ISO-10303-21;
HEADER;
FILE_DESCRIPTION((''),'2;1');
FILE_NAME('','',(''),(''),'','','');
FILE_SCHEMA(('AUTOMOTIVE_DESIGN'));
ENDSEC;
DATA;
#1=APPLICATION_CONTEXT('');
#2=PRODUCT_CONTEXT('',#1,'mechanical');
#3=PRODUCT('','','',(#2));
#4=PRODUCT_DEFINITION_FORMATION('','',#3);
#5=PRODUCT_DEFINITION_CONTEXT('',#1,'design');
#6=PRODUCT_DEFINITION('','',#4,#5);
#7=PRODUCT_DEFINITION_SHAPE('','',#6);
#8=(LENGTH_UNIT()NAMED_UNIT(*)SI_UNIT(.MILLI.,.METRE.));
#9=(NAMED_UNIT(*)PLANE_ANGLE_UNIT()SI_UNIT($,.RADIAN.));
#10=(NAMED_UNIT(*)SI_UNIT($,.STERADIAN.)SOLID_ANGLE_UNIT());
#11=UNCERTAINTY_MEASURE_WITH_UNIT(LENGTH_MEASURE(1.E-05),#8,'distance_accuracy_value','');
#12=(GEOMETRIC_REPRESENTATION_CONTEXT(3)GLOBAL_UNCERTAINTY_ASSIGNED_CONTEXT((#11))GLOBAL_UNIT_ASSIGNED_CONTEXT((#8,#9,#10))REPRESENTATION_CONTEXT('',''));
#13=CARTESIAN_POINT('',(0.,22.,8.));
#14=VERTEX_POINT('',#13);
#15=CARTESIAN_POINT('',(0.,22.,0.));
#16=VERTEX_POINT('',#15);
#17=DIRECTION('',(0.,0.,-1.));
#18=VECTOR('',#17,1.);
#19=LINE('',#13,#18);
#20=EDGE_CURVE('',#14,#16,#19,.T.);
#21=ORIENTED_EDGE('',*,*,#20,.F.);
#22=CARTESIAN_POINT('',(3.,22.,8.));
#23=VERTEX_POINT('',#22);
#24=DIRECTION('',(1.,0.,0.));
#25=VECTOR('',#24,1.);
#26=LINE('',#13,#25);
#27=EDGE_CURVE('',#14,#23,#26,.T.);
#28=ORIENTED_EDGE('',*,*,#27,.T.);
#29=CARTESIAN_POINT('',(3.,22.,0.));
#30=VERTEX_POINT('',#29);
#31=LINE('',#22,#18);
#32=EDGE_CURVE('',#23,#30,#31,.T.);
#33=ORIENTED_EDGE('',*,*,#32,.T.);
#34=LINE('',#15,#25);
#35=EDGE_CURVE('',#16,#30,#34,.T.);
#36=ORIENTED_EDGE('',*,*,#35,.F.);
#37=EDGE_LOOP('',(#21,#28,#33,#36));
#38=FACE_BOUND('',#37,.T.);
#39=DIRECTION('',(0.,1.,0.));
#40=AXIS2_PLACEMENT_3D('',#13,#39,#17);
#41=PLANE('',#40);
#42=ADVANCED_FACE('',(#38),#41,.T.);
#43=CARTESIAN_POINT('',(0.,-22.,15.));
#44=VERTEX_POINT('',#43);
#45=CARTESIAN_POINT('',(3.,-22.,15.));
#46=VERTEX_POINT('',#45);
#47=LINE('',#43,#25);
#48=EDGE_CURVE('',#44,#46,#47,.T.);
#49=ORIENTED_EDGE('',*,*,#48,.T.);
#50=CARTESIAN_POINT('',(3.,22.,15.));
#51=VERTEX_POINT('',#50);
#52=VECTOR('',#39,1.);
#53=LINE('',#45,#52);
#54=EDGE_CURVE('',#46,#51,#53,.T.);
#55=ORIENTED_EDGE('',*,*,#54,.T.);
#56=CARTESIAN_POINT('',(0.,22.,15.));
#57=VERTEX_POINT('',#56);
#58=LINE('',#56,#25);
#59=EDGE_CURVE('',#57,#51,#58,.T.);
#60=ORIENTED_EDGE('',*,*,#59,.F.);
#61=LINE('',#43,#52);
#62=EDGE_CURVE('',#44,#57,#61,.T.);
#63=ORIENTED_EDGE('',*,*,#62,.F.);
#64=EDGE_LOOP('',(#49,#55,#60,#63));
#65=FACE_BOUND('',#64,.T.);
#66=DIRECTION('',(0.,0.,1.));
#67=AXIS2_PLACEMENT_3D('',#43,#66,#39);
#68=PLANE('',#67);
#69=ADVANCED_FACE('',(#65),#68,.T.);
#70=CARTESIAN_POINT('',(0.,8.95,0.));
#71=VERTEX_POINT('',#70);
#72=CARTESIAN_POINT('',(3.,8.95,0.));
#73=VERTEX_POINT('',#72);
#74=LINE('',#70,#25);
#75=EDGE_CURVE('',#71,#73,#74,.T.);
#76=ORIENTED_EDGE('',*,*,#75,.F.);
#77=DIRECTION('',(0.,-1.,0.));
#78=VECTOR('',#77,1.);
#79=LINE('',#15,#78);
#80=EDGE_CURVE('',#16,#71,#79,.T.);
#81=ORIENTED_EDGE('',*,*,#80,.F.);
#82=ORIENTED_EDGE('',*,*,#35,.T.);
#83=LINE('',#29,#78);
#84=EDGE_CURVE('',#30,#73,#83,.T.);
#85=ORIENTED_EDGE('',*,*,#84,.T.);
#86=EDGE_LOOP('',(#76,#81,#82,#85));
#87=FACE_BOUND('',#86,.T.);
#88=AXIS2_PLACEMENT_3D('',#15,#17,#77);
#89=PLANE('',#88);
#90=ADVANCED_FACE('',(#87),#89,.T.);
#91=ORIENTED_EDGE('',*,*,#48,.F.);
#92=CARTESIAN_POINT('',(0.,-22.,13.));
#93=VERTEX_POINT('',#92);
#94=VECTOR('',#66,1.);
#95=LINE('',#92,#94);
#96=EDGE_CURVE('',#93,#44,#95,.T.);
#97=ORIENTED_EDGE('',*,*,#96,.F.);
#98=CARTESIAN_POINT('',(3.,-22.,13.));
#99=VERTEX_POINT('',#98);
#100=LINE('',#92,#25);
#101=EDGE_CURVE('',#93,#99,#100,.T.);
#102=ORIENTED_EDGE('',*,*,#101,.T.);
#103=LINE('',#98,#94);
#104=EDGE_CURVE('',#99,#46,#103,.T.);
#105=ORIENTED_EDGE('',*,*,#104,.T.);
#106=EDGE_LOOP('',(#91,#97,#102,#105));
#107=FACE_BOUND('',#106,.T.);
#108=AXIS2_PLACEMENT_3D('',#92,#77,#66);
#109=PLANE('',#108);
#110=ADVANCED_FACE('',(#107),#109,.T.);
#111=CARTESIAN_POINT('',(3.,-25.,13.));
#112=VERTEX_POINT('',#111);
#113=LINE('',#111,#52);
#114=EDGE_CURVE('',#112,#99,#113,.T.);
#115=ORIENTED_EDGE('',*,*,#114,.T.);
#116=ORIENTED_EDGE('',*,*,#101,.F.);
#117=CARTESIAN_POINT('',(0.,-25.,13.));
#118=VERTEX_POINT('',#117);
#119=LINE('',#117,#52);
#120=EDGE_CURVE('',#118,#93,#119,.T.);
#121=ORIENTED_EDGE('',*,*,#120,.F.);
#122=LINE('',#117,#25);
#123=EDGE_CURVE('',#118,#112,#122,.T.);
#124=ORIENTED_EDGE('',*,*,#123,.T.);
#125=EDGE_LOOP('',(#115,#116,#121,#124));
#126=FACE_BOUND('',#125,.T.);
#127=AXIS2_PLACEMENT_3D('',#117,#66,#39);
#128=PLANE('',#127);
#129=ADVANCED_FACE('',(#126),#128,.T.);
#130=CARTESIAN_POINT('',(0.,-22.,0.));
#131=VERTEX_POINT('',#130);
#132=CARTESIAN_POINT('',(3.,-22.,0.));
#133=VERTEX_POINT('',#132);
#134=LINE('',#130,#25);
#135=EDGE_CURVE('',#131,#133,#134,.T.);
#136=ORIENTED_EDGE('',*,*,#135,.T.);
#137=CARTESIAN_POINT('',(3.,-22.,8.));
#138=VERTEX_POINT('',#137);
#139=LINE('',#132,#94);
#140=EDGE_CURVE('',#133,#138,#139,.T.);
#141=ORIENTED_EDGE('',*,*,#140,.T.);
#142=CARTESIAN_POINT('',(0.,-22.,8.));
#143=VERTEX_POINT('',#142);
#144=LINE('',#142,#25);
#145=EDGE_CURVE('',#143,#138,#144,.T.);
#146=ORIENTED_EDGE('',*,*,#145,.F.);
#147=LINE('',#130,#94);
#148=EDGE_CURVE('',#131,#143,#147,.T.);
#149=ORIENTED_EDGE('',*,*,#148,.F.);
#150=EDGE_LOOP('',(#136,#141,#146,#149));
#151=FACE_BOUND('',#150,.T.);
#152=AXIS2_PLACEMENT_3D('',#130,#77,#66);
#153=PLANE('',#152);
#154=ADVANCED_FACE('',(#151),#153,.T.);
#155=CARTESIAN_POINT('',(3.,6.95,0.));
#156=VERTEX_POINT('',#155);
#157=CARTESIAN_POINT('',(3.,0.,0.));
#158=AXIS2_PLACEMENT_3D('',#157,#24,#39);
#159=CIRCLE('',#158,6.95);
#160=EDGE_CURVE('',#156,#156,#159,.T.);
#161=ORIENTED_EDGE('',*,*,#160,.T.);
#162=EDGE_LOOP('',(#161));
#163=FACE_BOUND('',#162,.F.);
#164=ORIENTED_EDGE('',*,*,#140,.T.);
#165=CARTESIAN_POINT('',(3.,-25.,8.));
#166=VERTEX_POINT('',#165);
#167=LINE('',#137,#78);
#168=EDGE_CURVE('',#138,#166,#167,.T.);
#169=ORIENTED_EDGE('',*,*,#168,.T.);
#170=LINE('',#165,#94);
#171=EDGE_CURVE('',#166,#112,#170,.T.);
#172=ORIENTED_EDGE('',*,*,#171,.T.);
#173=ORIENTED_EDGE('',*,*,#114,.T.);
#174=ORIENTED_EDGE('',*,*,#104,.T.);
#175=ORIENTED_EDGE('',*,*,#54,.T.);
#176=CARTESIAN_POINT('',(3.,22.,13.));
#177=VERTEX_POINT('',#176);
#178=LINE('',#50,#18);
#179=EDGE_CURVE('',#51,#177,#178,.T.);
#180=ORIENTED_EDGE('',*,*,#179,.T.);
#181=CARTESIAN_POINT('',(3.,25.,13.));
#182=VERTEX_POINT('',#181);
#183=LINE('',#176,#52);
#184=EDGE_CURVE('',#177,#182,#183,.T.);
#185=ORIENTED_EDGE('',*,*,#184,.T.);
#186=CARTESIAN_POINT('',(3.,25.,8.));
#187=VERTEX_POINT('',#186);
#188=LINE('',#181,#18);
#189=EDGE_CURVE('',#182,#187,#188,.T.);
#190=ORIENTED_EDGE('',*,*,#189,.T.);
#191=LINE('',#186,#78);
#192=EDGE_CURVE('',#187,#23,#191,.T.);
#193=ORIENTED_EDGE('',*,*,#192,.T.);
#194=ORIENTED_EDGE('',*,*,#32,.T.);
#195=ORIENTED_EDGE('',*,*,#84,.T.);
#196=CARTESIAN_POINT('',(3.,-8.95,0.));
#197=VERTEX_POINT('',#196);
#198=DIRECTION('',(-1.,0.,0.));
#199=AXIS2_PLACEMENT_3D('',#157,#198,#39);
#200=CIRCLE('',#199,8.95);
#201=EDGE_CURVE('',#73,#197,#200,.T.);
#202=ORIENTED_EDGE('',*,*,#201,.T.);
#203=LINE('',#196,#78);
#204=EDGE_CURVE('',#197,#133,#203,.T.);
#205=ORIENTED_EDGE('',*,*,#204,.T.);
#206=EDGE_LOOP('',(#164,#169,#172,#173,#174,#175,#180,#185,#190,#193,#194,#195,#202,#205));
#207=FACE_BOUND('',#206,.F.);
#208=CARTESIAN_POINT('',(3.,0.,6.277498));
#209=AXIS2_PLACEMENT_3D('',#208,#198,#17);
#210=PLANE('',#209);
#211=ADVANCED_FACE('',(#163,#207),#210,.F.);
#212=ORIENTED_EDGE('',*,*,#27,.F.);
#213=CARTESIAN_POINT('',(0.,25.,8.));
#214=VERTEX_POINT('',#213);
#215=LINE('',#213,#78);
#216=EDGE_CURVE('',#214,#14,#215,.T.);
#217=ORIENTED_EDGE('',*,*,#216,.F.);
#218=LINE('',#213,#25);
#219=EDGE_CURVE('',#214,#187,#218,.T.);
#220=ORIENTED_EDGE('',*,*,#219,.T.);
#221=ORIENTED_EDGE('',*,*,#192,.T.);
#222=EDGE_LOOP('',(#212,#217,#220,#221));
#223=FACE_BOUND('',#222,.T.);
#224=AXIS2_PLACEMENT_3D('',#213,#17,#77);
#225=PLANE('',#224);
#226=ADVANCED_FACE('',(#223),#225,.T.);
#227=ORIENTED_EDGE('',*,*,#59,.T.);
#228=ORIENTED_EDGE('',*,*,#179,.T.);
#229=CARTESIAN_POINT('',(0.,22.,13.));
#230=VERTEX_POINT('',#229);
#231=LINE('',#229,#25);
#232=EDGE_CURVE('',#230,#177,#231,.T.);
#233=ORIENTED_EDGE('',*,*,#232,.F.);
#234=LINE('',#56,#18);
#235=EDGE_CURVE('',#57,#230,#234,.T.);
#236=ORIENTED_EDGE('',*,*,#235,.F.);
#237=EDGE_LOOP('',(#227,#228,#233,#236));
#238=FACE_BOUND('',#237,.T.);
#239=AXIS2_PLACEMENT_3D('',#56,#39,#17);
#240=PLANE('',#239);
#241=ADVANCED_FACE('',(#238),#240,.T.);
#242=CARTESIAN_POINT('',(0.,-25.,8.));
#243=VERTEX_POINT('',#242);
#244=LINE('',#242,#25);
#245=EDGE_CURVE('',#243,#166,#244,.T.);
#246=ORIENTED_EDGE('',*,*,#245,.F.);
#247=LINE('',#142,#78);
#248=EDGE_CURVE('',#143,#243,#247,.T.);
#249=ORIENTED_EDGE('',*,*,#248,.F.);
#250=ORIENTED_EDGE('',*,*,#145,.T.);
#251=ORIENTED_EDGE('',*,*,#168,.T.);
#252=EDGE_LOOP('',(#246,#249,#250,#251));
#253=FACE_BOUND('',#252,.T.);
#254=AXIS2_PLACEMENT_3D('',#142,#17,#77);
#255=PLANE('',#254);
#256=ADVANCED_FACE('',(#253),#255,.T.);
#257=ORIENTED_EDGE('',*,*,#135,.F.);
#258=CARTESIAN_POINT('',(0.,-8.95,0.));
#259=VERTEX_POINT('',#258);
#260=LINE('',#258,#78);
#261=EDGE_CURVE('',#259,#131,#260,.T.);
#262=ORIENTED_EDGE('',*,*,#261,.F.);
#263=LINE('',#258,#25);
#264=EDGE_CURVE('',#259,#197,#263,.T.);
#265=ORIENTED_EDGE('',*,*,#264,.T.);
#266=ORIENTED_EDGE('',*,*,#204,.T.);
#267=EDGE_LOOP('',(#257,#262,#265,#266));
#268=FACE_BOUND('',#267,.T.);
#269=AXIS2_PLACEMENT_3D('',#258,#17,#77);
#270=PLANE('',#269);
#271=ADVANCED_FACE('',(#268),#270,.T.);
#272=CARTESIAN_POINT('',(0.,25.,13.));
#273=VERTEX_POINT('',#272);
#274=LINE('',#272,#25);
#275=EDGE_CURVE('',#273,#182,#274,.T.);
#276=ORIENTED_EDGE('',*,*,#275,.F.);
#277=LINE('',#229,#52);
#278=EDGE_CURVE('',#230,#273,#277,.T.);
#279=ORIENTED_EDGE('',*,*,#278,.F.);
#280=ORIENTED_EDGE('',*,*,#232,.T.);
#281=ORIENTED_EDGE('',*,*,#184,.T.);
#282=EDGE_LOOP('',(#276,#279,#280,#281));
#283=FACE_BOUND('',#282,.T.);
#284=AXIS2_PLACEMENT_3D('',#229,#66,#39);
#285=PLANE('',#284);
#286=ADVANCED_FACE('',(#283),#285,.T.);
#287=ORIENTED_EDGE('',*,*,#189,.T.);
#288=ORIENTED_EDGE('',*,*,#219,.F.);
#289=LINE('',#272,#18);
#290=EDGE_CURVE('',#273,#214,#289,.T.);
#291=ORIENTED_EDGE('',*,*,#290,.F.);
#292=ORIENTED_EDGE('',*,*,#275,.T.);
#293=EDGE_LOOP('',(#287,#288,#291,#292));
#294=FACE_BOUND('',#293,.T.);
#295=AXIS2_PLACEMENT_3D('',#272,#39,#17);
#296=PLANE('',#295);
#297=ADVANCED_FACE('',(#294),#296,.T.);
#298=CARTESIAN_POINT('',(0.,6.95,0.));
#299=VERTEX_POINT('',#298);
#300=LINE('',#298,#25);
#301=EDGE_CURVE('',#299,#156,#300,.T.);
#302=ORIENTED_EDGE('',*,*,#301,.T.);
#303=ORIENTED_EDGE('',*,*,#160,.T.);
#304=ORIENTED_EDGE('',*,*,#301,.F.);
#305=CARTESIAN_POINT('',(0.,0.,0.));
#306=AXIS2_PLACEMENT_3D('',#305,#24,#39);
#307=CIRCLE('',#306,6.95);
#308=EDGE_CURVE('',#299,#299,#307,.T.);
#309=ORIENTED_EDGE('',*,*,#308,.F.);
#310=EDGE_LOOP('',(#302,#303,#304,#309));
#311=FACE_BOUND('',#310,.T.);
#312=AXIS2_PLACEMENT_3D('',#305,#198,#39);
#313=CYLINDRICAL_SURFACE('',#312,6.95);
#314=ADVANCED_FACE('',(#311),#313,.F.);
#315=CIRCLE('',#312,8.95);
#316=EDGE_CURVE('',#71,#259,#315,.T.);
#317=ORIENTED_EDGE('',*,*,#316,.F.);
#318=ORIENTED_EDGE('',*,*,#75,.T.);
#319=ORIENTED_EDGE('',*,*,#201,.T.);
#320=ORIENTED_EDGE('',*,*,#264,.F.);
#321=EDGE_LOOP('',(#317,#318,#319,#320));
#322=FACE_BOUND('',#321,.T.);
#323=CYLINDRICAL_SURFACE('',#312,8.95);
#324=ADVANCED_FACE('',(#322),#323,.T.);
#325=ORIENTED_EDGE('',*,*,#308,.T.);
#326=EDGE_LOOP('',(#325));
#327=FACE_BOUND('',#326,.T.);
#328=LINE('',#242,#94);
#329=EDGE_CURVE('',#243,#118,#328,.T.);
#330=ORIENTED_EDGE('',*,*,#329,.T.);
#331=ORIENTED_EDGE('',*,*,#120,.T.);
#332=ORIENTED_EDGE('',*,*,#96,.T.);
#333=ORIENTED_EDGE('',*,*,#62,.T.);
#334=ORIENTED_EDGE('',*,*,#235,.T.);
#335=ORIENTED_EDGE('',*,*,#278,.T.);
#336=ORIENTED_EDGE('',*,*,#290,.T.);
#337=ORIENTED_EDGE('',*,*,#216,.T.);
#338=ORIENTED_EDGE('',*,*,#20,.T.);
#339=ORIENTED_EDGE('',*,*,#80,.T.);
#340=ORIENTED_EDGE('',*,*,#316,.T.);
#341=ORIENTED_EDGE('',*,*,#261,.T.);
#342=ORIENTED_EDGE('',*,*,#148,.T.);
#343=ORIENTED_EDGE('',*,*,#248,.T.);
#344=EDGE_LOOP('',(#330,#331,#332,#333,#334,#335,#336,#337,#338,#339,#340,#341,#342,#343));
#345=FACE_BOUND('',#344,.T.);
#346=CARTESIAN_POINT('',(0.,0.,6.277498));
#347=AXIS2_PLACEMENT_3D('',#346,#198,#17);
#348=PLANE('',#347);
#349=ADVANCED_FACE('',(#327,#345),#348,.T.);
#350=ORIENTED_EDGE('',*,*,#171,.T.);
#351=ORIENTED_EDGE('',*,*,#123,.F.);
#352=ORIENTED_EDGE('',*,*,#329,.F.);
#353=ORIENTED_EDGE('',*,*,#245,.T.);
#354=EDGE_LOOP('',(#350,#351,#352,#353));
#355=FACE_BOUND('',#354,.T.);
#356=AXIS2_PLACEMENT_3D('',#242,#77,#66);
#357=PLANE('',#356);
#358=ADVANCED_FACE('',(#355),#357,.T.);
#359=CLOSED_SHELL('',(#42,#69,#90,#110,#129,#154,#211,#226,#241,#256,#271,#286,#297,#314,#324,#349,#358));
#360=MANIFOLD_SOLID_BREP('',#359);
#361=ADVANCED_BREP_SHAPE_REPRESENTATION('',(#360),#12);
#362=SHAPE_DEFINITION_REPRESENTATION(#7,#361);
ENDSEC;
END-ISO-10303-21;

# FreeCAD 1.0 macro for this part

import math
import FreeCAD as App
import Part
import Sketcher

V = App.Vector

doc = App.newDocument("Part")
params = doc.addObject("Spreadsheet::Sheet", "Params")
for row, (alias, value) in enumerate([
    ("sketch1_diameter", "13.9 mm"),
    ("sketch1_height", "2 mm"),
    ("sketch1_height2", "5 mm"),
    ("sketch1_height3", "8 mm"),
    ("sketch1_radius", "8.95 mm"),
    ("pad1_length", "3 mm"),
], start=1):
    params.set(f"A{row}", alias)
    params.set(f"B{row}", "=" + value)
    params.setAlias(f"B{row}", alias)

body = doc.addObject("PartDesign::Body", "Body")

# Sketch on YZ plane
sketch1 = doc.addObject("Sketcher::SketchObject", "Sketch")
body.addObject(sketch1)
sketch1.AttachmentSupport = (doc.YZ_Plane, [""])
sketch1.MapMode = "FlatFace"
sketch1.addGeometry([
    Part.LineSegment(V(22, 13, 0), V(22, 15, 0)),  # 0
    Part.LineSegment(V(22, 15, 0), V(-22, 15, 0)),  # 1
    Part.LineSegment(V(-22, 15, 0), V(-22, 13, 0)),  # 2
    Part.LineSegment(V(-22, 13, 0), V(-25, 13, 0)),  # 3
    Part.LineSegment(V(-25, 13, 0), V(-25, 8, 0)),  # 4
    Part.LineSegment(V(-25, 8, 0), V(-22, 8, 0)),  # 5
    Part.LineSegment(V(-22, 8, 0), V(-22, 0, 0)),  # 6
    Part.LineSegment(V(-22, 0, 0), V(-8.9, 0, 0)),  # 7
    Part.ArcOfCircle(Part.Circle(V(0, 0, 0), V(0, 0, 1), 8.9), math.radians(180), math.radians(360)),  # 8
    Part.LineSegment(V(8.9, 0, 0), V(22, 0, 0)),  # 9
    Part.LineSegment(V(22, 0, 0), V(22, 8, 0)),  # 10
    Part.LineSegment(V(22, 8, 0), V(25, 8, 0)),  # 11
    Part.LineSegment(V(25, 8, 0), V(25, 13, 0)),  # 12
    Part.LineSegment(V(25, 13, 0), V(22, 13, 0)),  # 13
    Part.Circle(V(0, 0, 0), V(0, 0, 1), 7),  # 14
], False)
sketch1.addConstraint([
    Sketcher.Constraint("Coincident", 0, 2, 1, 1),
    Sketcher.Constraint("Coincident", 1, 2, 2, 1),
    Sketcher.Constraint("Coincident", 2, 2, 3, 1),
    Sketcher.Constraint("Coincident", 3, 2, 4, 1),
    Sketcher.Constraint("Coincident", 4, 2, 5, 1),
    Sketcher.Constraint("Coincident", 5, 2, 6, 1),
    Sketcher.Constraint("Coincident", 6, 2, 7, 1),
    Sketcher.Constraint("Coincident", 7, 2, 8, 1),
    Sketcher.Constraint("Coincident", 8, 2, 9, 1),
    Sketcher.Constraint("Coincident", 9, 2, 10, 1),
    Sketcher.Constraint("Coincident", 10, 2, 11, 1),
    Sketcher.Constraint("Coincident", 11, 2, 12, 1),
    Sketcher.Constraint("Coincident", 12, 2, 13, 1),
    Sketcher.Constraint("Coincident", 13, 2, 0, 1),
    Sketcher.Constraint("Vertical", 0),
    Sketcher.Constraint("Horizontal", 1),
    Sketcher.Constraint("Vertical", 2),
    Sketcher.Constraint("Horizontal", 3),
    Sketcher.Constraint("Vertical", 4),
    Sketcher.Constraint("Horizontal", 5),
    Sketcher.Constraint("Vertical", 6),
    Sketcher.Constraint("Horizontal", 7),
    Sketcher.Constraint("Horizontal", 9),
    Sketcher.Constraint("Vertical", 10),
    Sketcher.Constraint("Horizontal", 11),
    Sketcher.Constraint("Vertical", 12),
    Sketcher.Constraint("Horizontal", 13),
    Sketcher.Constraint("Coincident", 8, 3, -1, 1),
    Sketcher.Constraint("Coincident", 14, 3, -1, 1),
    Sketcher.Constraint("Symmetric", 6, 2, 9, 2, -1, 1),
    Sketcher.Constraint("Symmetric", 4, 2, 11, 2, -2),
    Sketcher.Constraint("Symmetric", 2, 2, 13, 2, -2),
    Sketcher.Constraint("PointOnObject", 6, 2, -1),
    Sketcher.Constraint("Vertical", 2, 2, 5, 2),
    Sketcher.Constraint("DistanceX", -1, 1, 0, 2, 22.0),
    Sketcher.Constraint("DistanceX", 3, 2, -1, 1, 25.0),
    Sketcher.Constraint("Diameter", 14, 13.9),
    Sketcher.Constraint("DistanceY", 0, 1, 0, 2, 2.0),
    Sketcher.Constraint("DistanceY", 4, 2, 4, 1, 5.0),
    Sketcher.Constraint("DistanceY", 6, 2, 6, 1, 8.0),
    Sketcher.Constraint("Radius", 8, 8.95),
])
sketch1.setExpression("Constraints[36]", "Params.sketch1_diameter")
sketch1.setExpression("Constraints[37]", "Params.sketch1_height")
sketch1.setExpression("Constraints[38]", "Params.sketch1_height2")
sketch1.setExpression("Constraints[39]", "Params.sketch1_height3")
sketch1.setExpression("Constraints[40]", "Params.sketch1_radius")
pad1 = doc.addObject("PartDesign::Pad", "Pad")
body.addObject(pad1)
pad1.Profile = sketch1
pad1.setExpression("Length", "Params.pad1_length")

doc.recompute()
